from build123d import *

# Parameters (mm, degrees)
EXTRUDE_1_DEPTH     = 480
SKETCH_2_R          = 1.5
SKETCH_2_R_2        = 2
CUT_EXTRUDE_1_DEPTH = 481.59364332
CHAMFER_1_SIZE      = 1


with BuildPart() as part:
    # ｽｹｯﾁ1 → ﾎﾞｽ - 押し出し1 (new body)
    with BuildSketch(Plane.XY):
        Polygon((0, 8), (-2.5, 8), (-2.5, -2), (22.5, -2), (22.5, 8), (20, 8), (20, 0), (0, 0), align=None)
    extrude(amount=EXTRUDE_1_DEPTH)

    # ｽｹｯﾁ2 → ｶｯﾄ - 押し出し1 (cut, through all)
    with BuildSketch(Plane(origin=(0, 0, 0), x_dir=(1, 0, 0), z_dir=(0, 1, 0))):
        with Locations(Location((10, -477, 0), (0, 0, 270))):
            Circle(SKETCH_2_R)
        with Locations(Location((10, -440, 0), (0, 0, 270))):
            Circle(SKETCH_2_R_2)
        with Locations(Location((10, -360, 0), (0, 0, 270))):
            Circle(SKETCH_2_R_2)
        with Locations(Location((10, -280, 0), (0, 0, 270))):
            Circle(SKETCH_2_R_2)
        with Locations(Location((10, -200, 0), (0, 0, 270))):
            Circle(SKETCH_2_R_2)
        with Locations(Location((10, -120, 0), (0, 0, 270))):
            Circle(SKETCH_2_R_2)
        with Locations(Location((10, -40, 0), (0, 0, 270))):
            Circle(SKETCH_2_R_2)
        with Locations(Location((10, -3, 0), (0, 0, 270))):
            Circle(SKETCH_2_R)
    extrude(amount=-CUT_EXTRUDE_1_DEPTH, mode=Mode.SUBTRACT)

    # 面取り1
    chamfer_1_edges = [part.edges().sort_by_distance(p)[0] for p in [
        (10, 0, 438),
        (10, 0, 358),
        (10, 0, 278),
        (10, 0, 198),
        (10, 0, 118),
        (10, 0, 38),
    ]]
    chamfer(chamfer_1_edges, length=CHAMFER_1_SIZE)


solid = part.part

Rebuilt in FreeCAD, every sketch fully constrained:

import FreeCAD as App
import Part
import Sketcher


def edges_at(feature, points):
    """Names of the edges that pass closest to the given points."""
    edges = feature.Shape.Edges
    near = lambda p: min(range(len(edges)), key=lambda i: edges[i].distToShape(Part.Vertex(*p))[0])
    return sorted({f"Edge{near(p) + 1}" for p in points})


def add_polygon(sketch, points):
    """Adds a closed chain of lines whose ends are joined by coincident constraints."""
    first, n = sketch.GeometryCount, len(points)
    for a, b in zip(points, points[1:] + points[:1]):
        sketch.addGeometry(Part.LineSegment(App.Vector(*a, 0), App.Vector(*b, 0)), False)
    for i in range(n):
        sketch.addConstraint(Sketcher.Constraint("Coincident", first + i, 2, first + (i + 1) % n, 1))

doc = App.newDocument("Part")
body = doc.addObject("PartDesign::Body", "Body")

# Sketch on XY plane
sketch1 = body.newObject("Sketcher::SketchObject", "Sketch")
sketch1.AttachmentSupport = (doc.getObject("XY_Plane"), [""])
sketch1.MapMode = "FlatFace"
add_polygon(sketch1, [(0, 8), (-2.5, 8), (-2.5, -2), (22.5, -2), (22.5, 8), (20, 8), (20, 0), (0, 0)])  # lines 0-7
sketch1.addConstraint(Sketcher.Constraint("Horizontal", 0))
sketch1.addConstraint(Sketcher.Constraint("Vertical", 1))
sketch1.addConstraint(Sketcher.Constraint("Horizontal", 2))
sketch1.addConstraint(Sketcher.Constraint("Vertical", 3))
sketch1.addConstraint(Sketcher.Constraint("Horizontal", 4))
sketch1.addConstraint(Sketcher.Constraint("Vertical", 5))
sketch1.addConstraint(Sketcher.Constraint("Horizontal", 6))
sketch1.addConstraint(Sketcher.Constraint("Vertical", 7))
sketch1.addConstraint(Sketcher.Constraint("Coincident", 6, 2, -1, 1))
sketch1.addConstraint(Sketcher.Constraint("Horizontal", 0, 2, 3, 2))
sketch1.addConstraint(Sketcher.Constraint("Equal", 0, 4))
sketch1.addConstraint(Sketcher.Constraint("DistanceX", 2, 1, 2, 2, 25.0))
sketch1.addConstraint(Sketcher.Constraint("DistanceX", 6, 2, 6, 1, 20.0))
sketch1.addConstraint(Sketcher.Constraint("DistanceY", 1, 2, 1, 1, 10.0))
sketch1.addConstraint(Sketcher.Constraint("DistanceY", 5, 2, 5, 1, 8.0))
pad1 = body.newObject("PartDesign::Pad", "Pad")
pad1.Profile = sketch1
pad1.Length = 480

# Sketch on XZ plane
sketch2 = body.newObject("Sketcher::SketchObject", "Sketch001")
sketch2.AttachmentSupport = (doc.getObject("XZ_Plane"), [""])
sketch2.MapMode = "FlatFace"
sketch2.addGeometry(Part.Circle(App.Vector(10, 477, 0), App.Vector(0, 0, 1), 1.5), False)
sketch2.addGeometry(Part.Circle(App.Vector(10, 440, 0), App.Vector(0, 0, 1), 2), False)
sketch2.addGeometry(Part.Circle(App.Vector(10, 360, 0), App.Vector(0, 0, 1), 2), False)
sketch2.addGeometry(Part.Circle(App.Vector(10, 280, 0), App.Vector(0, 0, 1), 2), False)
sketch2.addGeometry(Part.Circle(App.Vector(10, 200, 0), App.Vector(0, 0, 1), 2), False)
sketch2.addGeometry(Part.Circle(App.Vector(10, 120, 0), App.Vector(0, 0, 1), 2), False)
sketch2.addGeometry(Part.Circle(App.Vector(10, 40, 0), App.Vector(0, 0, 1), 2), False)
sketch2.addGeometry(Part.Circle(App.Vector(10, 3, 0), App.Vector(0, 0, 1), 1.5), False)
sketch2.addConstraint(Sketcher.Constraint("Equal", 1, 2))
sketch2.addConstraint(Sketcher.Constraint("Equal", 2, 3))
sketch2.addConstraint(Sketcher.Constraint("Equal", 3, 4))
sketch2.addConstraint(Sketcher.Constraint("Equal", 4, 5))
sketch2.addConstraint(Sketcher.Constraint("Equal", 5, 6))
sketch2.addConstraint(Sketcher.Constraint("Equal", 0, 7))
sketch2.addConstraint(Sketcher.Constraint("Vertical", 0, 3, 1, 3))
sketch2.addConstraint(Sketcher.Constraint("Vertical", 1, 3, 2, 3))
sketch2.addConstraint(Sketcher.Constraint("Vertical", 2, 3, 3, 3))
sketch2.addConstraint(Sketcher.Constraint("Vertical", 3, 3, 4, 3))
sketch2.addConstraint(Sketcher.Constraint("Vertical", 4, 3, 5, 3))
sketch2.addConstraint(Sketcher.Constraint("Vertical", 5, 3, 6, 3))
sketch2.addConstraint(Sketcher.Constraint("Vertical", 6, 3, 7, 3))
sketch2.addConstraint(Sketcher.Constraint("Diameter", 0, 3.0))
sketch2.addConstraint(Sketcher.Constraint("Diameter", 1, 4.0))
sketch2.addConstraint(Sketcher.Constraint("DistanceX", -1, 1, 0, 3, 10.0))
sketch2.addConstraint(Sketcher.Constraint("DistanceY", -1, 1, 0, 3, 477.0))
sketch2.addConstraint(Sketcher.Constraint("DistanceY", -1, 1, 1, 3, 440.0))
sketch2.addConstraint(Sketcher.Constraint("DistanceY", -1, 1, 2, 3, 360.0))
sketch2.addConstraint(Sketcher.Constraint("DistanceY", -1, 1, 3, 3, 280.0))
sketch2.addConstraint(Sketcher.Constraint("DistanceY", -1, 1, 4, 3, 200.0))
sketch2.addConstraint(Sketcher.Constraint("DistanceY", -1, 1, 5, 3, 120.0))
sketch2.addConstraint(Sketcher.Constraint("DistanceY", -1, 1, 6, 3, 40.0))
sketch2.addConstraint(Sketcher.Constraint("DistanceY", -1, 1, 7, 3, 3.0))
pocket1 = body.newObject("PartDesign::Pocket", "Pocket")
pocket1.Profile = sketch2
pocket1.Type = "ThroughAll"
pocket1.Reversed = True
doc.recompute()

chamfer = body.newObject("PartDesign::Chamfer", "Chamfer")
chamfer.Base = (pocket1, edges_at(pocket1, [
    (10, 0, 438),
    (10, 0, 358),
    (10, 0, 278),
    (10, 0, 198),
    (10, 0, 118),
    (10, 0, 38),
]))
chamfer.Size = 1

doc.recompute()
